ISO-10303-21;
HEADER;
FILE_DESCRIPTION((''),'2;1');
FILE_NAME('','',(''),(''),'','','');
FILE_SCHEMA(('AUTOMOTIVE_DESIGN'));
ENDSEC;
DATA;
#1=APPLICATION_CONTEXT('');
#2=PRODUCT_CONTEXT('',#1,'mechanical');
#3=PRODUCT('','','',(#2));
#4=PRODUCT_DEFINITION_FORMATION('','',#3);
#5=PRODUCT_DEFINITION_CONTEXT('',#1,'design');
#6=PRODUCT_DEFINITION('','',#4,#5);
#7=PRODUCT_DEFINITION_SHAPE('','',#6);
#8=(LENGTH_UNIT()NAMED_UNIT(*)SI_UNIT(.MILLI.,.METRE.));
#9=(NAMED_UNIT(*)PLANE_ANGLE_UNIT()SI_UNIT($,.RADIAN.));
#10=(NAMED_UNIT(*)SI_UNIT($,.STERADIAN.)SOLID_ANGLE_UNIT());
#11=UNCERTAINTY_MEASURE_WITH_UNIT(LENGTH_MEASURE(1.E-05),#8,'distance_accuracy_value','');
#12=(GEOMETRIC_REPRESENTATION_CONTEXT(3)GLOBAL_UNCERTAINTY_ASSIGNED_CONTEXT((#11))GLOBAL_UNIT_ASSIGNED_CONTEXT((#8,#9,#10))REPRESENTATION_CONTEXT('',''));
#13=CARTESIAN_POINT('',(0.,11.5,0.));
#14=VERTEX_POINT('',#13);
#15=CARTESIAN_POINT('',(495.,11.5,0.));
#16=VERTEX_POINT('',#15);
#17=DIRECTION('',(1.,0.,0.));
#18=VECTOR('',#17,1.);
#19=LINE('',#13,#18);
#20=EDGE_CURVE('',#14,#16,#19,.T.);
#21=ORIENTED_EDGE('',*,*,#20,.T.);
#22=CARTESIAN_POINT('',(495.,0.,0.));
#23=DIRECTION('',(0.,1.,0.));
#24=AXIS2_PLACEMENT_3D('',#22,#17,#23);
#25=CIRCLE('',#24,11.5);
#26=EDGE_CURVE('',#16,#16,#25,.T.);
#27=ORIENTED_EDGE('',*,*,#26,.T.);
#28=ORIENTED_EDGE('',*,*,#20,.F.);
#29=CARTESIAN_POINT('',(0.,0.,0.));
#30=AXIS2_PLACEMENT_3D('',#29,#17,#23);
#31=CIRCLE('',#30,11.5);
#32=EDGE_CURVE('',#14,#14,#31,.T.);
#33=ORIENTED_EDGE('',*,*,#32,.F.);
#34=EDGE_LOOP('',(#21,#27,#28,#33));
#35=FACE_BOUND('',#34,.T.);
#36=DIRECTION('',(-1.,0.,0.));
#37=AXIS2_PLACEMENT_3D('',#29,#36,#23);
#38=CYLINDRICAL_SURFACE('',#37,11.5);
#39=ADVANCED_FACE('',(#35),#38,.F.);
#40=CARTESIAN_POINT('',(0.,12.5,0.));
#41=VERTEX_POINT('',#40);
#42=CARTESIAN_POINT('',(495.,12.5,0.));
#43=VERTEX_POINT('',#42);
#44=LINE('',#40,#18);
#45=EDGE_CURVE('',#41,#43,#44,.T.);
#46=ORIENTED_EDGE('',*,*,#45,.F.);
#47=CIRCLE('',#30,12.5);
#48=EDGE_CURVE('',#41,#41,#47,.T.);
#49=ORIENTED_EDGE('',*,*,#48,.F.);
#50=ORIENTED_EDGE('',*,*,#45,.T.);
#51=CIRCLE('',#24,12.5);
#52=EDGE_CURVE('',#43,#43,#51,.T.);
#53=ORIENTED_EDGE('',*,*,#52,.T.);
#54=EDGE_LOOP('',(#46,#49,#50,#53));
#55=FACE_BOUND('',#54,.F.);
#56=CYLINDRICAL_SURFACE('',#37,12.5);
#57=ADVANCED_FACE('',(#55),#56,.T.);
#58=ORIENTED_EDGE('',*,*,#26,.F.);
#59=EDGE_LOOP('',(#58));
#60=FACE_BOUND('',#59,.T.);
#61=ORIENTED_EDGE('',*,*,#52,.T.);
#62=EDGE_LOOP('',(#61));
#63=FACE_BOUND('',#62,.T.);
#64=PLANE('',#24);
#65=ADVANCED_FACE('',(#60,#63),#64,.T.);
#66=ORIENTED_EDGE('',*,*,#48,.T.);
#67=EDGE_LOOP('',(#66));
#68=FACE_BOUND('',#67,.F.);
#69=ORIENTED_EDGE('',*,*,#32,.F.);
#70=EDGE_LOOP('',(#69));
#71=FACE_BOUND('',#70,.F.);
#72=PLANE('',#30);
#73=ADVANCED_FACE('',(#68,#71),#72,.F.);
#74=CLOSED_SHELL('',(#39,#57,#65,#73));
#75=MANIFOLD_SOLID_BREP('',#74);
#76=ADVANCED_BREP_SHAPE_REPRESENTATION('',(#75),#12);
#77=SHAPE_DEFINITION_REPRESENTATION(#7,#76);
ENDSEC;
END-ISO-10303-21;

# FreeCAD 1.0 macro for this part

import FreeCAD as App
import Part
import Sketcher

V = App.Vector

doc = App.newDocument("Part")
params = doc.addObject("Spreadsheet::Sheet", "Params")
for row, (alias, value) in enumerate([
    ("sketch1_diameter", "25 mm"),
    ("sketch1_diameter2", "23 mm"),
    ("pad1_length", "495 mm"),
], start=1):
    params.set(f"A{row}", alias)
    params.set(f"B{row}", "=" + value)
    params.setAlias(f"B{row}", alias)

body = doc.addObject("PartDesign::Body", "Body")

sketch1 = body.newObject("Sketcher::SketchObject", "Sketch")
sketch1.AttachmentSupport = (doc.getObject("YZ_Plane"), [""])
sketch1.MapMode = "FlatFace"
sketch1.addGeometry([
    Part.Circle(V(0, 0, 0), V(0, 0, 1), 12.5),
    Part.Circle(V(0, 0, 0), V(0, 0, 1), 11.5),
], False)
sketch1.addConstraint([
    Sketcher.Constraint("Coincident", 0, 3, -1, 1),
    Sketcher.Constraint("Coincident", 1, 3, -1, 1),
    Sketcher.Constraint("Diameter", 0, 25.0),
    Sketcher.Constraint("Diameter", 1, 23.0),
])
sketch1.setExpression("Constraints[2]", "Params.sketch1_diameter")
sketch1.setExpression("Constraints[3]", "Params.sketch1_diameter2")
pad1 = body.newObject("PartDesign::Pad", "Pad")
pad1.Profile = sketch1
pad1.setExpression("Length", "Params.pad1_length")

doc.recompute()
